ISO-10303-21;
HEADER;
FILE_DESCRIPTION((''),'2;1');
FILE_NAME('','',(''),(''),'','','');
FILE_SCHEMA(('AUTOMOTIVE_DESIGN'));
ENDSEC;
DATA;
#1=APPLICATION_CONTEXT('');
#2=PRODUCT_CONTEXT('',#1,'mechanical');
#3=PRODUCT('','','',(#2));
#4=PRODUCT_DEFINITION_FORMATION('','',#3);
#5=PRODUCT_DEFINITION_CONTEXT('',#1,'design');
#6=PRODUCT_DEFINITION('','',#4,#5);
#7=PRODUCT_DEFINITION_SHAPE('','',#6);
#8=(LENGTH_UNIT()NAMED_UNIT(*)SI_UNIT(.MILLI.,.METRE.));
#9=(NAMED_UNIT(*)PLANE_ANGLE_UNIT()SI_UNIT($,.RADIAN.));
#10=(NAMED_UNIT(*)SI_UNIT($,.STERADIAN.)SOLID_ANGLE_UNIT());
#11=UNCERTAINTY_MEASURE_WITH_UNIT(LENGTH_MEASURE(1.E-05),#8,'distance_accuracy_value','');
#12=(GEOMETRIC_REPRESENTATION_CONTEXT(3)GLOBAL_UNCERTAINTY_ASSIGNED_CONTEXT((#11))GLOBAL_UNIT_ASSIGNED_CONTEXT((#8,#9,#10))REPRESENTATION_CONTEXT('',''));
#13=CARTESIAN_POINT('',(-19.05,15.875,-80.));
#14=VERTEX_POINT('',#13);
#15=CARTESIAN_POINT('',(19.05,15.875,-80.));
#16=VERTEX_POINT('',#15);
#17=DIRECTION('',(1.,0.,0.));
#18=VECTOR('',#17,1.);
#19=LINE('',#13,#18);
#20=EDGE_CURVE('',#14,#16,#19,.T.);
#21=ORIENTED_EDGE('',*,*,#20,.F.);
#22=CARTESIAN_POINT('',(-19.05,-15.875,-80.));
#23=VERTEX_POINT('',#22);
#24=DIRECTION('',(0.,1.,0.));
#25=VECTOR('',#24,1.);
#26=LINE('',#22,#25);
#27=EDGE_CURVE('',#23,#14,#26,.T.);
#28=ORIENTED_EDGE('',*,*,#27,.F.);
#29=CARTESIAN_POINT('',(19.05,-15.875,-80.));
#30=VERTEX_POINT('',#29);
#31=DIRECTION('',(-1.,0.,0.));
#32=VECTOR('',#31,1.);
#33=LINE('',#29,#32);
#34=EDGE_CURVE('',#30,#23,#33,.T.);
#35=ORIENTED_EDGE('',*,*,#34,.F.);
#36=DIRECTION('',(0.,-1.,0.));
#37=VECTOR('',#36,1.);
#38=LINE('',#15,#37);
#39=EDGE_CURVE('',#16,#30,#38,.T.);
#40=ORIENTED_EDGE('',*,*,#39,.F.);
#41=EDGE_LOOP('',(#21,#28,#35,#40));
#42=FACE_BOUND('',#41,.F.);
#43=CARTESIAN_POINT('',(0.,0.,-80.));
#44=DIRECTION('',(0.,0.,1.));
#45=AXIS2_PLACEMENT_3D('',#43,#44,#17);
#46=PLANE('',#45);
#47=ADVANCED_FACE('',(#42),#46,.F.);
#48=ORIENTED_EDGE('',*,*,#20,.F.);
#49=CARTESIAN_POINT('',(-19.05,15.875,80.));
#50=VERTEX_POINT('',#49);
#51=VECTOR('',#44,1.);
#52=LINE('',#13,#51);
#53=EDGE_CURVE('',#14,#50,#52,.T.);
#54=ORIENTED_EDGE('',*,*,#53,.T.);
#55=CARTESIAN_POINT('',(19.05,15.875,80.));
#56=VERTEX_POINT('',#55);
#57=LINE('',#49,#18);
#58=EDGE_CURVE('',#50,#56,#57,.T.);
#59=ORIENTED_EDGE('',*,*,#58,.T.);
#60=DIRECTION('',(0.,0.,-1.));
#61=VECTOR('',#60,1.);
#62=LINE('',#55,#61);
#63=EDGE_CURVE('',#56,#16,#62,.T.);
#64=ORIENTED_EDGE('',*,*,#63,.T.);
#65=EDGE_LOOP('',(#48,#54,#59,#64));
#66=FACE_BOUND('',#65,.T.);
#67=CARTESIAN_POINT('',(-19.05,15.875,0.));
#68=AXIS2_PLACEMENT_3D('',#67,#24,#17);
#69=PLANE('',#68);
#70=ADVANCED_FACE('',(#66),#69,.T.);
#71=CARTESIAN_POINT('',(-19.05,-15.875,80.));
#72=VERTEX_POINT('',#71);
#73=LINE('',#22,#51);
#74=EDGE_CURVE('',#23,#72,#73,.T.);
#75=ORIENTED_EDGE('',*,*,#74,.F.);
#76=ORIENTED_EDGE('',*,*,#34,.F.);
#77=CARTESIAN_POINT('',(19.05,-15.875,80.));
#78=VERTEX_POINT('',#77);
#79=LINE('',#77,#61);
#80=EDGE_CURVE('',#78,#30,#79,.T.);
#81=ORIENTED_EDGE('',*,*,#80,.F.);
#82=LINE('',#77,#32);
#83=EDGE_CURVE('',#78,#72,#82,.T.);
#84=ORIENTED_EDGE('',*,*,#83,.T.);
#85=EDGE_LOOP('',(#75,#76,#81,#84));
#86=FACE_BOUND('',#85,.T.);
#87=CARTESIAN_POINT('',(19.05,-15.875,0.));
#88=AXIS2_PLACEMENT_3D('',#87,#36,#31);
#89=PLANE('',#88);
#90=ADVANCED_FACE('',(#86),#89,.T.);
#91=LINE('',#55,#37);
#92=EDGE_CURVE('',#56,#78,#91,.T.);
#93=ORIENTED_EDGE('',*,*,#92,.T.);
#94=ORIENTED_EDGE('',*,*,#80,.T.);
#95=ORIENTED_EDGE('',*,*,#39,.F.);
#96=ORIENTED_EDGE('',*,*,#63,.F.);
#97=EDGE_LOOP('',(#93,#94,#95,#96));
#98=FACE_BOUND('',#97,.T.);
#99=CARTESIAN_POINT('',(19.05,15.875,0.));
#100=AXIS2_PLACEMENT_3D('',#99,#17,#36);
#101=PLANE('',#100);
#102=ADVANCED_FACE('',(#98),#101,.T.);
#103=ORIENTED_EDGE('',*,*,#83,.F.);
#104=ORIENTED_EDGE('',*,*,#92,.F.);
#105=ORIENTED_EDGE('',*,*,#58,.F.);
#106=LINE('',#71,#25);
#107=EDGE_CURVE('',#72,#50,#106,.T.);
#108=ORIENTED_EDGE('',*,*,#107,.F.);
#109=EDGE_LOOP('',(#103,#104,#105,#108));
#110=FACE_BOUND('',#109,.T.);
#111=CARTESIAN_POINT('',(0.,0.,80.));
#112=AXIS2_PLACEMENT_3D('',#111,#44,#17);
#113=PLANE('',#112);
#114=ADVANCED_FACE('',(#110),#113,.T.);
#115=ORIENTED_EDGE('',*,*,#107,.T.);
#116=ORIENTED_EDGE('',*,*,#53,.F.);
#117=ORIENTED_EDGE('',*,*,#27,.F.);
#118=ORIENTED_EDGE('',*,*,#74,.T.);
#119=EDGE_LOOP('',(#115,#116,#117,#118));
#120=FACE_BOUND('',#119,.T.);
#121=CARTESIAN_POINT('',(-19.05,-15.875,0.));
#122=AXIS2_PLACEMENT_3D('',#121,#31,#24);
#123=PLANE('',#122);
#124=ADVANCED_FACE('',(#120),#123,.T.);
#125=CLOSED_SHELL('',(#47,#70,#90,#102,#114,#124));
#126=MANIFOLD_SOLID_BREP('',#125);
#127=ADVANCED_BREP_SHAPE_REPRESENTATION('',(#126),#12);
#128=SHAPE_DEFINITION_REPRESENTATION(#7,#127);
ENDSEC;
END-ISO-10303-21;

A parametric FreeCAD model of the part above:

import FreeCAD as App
import Part
import Sketcher
Q = App.Units.Quantity


def add_polygon(sketch, points):
    """Adds a closed chain of lines whose ends are joined by coincident constraints."""
    first, n = sketch.GeometryCount, len(points)
    for a, b in zip(points, points[1:] + points[:1]):
        sketch.addGeometry(Part.LineSegment(App.Vector(*a, 0), App.Vector(*b, 0)), False)
    for i in range(n):
        sketch.addConstraint(Sketcher.Constraint("Coincident", first + i, 2, first + (i + 1) % n, 1))

doc = App.newDocument("Part")
body = doc.addObject("PartDesign::Body", "Body")

# Sketch on XY plane
sketch1 = body.newObject("Sketcher::SketchObject", "Sketch")
sketch1.AttachmentSupport = (doc.getObject("XY_Plane"), [""])
sketch1.MapMode = "FlatFace"
add_polygon(sketch1, [(19, 16), (-19, 16), (-19, -16), (19, -16)])  # lines 0-3
sketch1.addConstraint([
    Sketcher.Constraint("Horizontal", 0),
    Sketcher.Constraint("Vertical", 1),
    Sketcher.Constraint("Horizontal", 2),
    Sketcher.Constraint("Vertical", 3),
    Sketcher.Constraint("Symmetric", 0, 2, 2, 2, -1, 1),
    Sketcher.Constraint("DistanceX", 0, 2, 0, 1, Q("1.5 in")),
    Sketcher.Constraint("DistanceY", 1, 2, 1, 1, Q("1.25 in")),
])
pad1 = body.newObject("PartDesign::Pad", "Pad")
pad1.Profile = sketch1
pad1.Length = 160
pad1.Midplane = True

doc.recompute()
